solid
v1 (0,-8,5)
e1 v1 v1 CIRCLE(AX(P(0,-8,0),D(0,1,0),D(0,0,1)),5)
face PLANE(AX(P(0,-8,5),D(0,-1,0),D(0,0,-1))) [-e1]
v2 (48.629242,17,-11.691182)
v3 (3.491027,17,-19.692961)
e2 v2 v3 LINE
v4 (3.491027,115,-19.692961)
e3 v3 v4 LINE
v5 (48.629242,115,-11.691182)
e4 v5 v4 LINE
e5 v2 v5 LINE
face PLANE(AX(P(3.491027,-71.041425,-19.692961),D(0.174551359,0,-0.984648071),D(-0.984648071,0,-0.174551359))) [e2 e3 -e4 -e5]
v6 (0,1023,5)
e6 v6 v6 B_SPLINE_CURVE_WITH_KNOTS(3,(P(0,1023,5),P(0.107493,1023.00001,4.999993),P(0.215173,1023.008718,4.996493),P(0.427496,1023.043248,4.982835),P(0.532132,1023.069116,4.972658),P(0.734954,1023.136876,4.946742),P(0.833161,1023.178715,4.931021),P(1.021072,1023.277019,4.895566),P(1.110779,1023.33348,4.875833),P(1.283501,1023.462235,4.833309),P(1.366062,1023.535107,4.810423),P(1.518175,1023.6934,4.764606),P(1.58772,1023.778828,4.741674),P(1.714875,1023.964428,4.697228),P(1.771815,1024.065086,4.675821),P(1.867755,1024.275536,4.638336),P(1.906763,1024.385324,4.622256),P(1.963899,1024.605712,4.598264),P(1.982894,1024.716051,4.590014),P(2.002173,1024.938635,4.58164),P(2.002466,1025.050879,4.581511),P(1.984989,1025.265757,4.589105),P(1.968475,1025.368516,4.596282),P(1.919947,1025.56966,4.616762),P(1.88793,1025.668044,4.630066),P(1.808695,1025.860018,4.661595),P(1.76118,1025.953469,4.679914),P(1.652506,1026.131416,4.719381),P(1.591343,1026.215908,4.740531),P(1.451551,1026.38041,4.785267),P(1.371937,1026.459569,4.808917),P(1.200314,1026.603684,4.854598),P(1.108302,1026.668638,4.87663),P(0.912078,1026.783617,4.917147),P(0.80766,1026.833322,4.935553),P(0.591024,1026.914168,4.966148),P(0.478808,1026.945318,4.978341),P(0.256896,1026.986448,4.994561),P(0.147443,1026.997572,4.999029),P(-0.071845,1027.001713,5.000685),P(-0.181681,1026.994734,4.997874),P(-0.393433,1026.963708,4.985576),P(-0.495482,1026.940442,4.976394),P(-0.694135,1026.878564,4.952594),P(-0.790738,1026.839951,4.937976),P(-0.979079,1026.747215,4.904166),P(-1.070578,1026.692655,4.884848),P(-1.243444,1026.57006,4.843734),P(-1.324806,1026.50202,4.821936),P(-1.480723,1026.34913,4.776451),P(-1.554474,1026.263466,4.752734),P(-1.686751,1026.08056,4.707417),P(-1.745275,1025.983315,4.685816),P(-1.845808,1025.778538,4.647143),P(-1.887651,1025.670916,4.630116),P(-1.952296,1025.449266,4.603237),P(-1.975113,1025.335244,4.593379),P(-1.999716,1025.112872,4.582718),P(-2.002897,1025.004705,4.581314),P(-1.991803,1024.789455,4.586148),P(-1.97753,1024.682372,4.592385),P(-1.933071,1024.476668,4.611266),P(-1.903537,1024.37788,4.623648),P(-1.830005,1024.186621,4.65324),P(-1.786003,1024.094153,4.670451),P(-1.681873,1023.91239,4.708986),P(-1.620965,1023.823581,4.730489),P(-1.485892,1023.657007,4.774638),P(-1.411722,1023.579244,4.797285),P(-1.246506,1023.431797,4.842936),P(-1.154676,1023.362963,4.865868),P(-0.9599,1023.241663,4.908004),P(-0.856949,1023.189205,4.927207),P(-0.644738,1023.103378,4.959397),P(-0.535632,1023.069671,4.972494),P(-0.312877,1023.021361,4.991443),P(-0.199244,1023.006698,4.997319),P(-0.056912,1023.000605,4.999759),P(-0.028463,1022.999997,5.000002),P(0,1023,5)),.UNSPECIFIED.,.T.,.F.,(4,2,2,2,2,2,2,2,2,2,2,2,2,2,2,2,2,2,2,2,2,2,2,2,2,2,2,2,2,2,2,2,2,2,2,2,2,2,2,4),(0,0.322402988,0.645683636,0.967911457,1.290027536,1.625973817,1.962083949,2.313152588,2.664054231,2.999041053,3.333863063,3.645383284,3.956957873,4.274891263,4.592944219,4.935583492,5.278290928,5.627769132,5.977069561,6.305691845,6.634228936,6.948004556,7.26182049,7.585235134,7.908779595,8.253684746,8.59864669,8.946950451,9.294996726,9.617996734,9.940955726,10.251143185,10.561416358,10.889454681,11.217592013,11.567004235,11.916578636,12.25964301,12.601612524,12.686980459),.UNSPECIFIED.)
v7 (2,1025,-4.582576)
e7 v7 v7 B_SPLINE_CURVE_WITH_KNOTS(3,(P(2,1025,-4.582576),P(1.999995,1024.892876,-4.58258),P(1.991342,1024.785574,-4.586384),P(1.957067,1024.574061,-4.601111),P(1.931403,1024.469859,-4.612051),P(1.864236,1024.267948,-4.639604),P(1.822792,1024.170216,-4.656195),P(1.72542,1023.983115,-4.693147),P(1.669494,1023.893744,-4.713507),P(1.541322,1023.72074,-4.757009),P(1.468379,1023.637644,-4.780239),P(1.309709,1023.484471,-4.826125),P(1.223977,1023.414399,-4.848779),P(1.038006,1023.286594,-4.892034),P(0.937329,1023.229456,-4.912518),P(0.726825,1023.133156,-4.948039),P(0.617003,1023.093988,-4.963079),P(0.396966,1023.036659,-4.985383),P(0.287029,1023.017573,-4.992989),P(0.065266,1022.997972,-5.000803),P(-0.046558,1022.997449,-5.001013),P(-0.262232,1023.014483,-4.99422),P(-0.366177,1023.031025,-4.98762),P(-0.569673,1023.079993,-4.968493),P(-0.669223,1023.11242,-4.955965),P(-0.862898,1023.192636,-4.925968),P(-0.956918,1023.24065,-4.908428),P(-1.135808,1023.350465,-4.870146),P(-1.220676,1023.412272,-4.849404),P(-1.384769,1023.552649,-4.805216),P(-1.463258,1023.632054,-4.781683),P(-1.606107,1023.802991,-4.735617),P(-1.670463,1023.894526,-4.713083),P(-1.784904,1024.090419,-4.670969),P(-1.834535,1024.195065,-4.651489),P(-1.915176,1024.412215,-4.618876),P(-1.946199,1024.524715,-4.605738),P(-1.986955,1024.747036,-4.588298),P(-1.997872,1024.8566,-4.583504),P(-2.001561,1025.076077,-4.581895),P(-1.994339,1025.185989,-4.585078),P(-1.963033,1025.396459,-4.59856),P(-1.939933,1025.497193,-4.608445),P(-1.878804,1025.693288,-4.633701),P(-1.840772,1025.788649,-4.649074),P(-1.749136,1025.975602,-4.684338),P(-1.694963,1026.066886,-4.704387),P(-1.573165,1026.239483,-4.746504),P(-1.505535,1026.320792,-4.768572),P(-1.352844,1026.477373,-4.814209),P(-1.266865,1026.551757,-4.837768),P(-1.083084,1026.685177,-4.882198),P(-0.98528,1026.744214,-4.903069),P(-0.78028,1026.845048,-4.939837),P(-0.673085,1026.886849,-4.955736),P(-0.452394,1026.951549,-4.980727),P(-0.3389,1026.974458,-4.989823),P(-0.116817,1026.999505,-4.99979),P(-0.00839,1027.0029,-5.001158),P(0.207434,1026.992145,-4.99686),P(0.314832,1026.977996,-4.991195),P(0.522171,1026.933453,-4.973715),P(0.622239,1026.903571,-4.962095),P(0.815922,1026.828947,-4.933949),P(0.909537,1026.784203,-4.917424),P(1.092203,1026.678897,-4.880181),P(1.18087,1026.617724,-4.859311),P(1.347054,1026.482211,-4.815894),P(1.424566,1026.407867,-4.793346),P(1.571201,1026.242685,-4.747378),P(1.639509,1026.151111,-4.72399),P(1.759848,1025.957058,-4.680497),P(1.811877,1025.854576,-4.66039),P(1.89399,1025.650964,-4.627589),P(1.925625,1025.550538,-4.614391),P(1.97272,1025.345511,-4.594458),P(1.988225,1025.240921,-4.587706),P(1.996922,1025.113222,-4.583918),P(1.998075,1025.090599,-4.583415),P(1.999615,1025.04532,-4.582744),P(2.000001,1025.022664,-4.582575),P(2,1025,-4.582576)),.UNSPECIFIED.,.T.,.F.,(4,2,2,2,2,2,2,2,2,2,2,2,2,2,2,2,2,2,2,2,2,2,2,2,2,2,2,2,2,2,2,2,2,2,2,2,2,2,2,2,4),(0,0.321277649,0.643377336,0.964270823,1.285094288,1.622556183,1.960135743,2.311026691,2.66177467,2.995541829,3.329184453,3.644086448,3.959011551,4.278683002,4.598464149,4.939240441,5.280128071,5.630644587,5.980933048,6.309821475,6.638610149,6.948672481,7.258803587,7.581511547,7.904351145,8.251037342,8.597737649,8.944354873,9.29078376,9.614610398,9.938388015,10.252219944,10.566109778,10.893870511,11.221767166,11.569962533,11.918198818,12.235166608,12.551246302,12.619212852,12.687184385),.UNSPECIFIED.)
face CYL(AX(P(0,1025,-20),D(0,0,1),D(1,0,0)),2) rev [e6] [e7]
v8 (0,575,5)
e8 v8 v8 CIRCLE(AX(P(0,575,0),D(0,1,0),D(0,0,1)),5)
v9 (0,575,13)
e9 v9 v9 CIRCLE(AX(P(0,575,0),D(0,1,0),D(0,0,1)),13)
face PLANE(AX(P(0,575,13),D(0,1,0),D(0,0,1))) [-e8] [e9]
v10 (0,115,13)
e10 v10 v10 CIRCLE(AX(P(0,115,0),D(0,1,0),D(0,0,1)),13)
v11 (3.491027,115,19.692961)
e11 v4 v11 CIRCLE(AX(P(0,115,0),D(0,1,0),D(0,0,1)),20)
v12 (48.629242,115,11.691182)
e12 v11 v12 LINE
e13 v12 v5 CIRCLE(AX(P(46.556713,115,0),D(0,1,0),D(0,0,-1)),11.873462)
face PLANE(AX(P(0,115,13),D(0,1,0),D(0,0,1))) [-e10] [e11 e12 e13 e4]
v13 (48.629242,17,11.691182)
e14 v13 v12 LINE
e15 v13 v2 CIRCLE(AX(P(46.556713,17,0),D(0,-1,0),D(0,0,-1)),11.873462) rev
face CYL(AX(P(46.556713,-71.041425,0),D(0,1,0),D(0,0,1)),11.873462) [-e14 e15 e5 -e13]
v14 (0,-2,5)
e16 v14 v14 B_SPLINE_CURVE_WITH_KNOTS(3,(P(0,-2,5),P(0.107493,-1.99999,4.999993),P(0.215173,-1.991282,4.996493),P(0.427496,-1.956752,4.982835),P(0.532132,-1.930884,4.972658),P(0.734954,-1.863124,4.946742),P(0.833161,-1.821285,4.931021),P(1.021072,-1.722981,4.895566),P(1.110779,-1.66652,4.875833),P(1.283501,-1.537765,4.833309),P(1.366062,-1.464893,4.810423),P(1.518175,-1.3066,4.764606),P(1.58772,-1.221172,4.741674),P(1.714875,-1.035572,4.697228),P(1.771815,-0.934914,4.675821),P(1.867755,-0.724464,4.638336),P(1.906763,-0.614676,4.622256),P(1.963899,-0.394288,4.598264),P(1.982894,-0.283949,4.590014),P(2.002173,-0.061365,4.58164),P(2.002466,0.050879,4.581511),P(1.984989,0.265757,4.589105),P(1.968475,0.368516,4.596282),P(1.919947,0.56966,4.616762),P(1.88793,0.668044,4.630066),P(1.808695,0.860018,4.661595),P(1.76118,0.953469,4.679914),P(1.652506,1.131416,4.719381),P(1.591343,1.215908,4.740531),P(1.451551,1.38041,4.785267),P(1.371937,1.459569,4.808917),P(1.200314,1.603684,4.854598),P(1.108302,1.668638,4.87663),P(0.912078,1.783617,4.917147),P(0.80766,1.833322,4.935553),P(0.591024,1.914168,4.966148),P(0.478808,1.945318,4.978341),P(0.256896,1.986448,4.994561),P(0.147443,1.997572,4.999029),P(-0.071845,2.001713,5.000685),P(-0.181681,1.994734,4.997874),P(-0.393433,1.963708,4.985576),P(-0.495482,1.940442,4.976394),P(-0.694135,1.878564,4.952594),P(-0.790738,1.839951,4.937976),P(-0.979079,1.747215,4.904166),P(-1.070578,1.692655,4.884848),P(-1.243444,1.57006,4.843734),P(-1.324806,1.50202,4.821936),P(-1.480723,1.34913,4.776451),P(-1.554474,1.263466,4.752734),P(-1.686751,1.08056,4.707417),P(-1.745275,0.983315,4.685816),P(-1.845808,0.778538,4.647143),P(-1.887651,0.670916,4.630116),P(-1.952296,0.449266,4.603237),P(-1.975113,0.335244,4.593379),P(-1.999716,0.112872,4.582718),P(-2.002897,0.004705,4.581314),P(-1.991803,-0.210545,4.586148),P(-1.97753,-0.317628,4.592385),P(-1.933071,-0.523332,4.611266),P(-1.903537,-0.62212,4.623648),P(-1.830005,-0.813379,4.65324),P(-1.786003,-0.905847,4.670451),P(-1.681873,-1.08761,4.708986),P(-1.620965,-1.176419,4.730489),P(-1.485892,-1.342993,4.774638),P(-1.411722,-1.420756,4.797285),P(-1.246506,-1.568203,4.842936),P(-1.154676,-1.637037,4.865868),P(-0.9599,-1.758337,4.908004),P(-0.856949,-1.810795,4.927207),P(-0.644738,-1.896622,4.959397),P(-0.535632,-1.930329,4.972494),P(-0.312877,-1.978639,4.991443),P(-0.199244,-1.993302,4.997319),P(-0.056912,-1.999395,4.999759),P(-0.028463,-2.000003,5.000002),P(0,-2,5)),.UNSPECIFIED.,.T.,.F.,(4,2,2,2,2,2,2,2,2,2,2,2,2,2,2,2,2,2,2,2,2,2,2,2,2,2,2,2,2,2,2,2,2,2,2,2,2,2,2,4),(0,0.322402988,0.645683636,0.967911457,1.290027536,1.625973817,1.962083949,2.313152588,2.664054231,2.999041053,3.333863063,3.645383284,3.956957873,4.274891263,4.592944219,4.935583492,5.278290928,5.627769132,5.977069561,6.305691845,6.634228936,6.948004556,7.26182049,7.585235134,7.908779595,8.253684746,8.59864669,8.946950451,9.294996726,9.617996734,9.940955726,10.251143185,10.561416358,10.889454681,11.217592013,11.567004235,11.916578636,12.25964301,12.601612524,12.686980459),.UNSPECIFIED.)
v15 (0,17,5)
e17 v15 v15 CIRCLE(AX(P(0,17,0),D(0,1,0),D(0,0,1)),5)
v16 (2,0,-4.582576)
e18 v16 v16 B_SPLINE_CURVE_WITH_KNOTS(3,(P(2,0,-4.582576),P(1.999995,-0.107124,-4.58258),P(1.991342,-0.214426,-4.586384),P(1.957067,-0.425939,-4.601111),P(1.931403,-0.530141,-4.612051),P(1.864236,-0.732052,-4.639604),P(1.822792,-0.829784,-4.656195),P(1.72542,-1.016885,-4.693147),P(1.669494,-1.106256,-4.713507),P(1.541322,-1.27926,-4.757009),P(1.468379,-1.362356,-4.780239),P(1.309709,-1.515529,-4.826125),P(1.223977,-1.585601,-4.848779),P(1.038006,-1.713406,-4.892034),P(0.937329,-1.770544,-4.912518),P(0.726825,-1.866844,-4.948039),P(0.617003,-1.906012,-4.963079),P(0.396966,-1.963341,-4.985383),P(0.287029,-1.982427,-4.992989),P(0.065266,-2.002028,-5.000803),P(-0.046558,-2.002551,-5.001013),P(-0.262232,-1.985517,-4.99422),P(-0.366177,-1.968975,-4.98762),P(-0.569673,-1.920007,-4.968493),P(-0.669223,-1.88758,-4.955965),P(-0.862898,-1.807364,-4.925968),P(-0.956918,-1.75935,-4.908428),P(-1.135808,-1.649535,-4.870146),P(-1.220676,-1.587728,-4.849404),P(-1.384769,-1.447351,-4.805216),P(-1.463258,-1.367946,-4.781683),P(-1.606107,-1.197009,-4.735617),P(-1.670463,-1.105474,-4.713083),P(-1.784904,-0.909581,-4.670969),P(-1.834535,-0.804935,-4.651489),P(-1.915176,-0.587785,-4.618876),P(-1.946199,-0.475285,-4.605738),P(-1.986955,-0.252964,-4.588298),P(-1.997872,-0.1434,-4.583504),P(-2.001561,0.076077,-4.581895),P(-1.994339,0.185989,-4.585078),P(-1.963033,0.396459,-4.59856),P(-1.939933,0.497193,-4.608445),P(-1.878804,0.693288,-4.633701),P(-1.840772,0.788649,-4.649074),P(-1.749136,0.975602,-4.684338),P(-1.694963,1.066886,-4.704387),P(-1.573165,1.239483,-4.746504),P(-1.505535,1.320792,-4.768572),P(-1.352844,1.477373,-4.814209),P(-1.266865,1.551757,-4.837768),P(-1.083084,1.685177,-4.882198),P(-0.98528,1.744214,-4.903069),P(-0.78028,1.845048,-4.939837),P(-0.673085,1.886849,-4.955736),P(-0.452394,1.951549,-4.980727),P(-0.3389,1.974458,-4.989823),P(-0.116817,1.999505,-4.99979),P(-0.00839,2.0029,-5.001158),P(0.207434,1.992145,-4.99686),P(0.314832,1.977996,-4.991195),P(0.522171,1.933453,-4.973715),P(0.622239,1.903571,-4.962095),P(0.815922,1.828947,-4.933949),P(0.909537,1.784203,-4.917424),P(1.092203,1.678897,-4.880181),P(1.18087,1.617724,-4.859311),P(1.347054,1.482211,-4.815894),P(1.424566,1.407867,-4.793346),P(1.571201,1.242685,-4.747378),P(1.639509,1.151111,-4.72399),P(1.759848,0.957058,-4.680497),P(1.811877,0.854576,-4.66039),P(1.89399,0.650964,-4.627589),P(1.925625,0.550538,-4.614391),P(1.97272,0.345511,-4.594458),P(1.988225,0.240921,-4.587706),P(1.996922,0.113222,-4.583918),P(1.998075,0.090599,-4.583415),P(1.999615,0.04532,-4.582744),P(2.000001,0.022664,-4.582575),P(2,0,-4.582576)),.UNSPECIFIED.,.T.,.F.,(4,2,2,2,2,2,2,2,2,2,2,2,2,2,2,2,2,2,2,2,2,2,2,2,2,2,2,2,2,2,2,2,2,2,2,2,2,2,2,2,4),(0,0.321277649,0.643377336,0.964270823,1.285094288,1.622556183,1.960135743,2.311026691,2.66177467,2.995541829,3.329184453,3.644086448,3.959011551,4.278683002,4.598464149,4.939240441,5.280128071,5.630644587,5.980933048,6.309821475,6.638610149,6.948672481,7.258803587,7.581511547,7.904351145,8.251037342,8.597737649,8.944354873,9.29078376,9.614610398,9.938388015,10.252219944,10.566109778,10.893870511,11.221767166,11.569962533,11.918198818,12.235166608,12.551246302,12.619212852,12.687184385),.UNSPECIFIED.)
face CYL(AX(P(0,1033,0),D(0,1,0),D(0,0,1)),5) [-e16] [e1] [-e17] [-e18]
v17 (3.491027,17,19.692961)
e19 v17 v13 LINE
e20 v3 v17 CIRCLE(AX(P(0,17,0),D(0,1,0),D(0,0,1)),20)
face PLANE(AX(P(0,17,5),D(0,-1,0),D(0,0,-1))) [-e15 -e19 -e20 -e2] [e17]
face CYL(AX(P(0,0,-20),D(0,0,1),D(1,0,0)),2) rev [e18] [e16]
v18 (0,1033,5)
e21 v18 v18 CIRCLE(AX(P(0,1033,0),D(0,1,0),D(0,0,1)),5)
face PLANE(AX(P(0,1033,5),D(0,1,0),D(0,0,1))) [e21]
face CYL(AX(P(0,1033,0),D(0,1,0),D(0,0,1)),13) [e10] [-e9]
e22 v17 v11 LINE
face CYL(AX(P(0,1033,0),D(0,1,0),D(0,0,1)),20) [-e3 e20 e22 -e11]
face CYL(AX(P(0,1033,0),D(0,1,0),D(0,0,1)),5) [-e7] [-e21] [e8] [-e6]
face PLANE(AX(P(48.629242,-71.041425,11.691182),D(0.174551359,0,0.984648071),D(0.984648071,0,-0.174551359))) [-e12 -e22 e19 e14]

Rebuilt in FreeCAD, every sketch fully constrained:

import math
import FreeCAD as App
import Part
import Sketcher
from FreeCAD import Vector


def add_polygon(sketch, points):
    """Adds a closed chain of lines whose ends are joined by coincident constraints."""
    first, n = sketch.GeometryCount, len(points)
    for a, b in zip(points, points[1:] + points[:1]):
        sketch.addGeometry(Part.LineSegment(App.Vector(*a, 0), App.Vector(*b, 0)), False)
    for i in range(n):
        sketch.addConstraint(Sketcher.Constraint("Coincident", first + i, 2, first + (i + 1) % n, 1))

doc = App.newDocument("Part")
body = doc.addObject("PartDesign::Body", "Body")

# Sketch on YZ plane
sketch1 = body.newObject("Sketcher::SketchObject", "Sketch")
sketch1.AttachmentSupport = (doc.getObject("YZ_Plane"), [""])
sketch1.MapMode = "FlatFace"
add_polygon(sketch1, [(115, 20), (17, 20), (17, 5), (-8, 5), (-8, 0), (1033, 0), (1033, 5), (575, 5), (575, 13), (115, 13)])  # lines 0-9
sketch1.addConstraint([
    Sketcher.Constraint("Horizontal", 0),
    Sketcher.Constraint("Vertical", 1),
    Sketcher.Constraint("Horizontal", 2),
    Sketcher.Constraint("Vertical", 3),
    Sketcher.Constraint("Horizontal", 4),
    Sketcher.Constraint("Vertical", 5),
    Sketcher.Constraint("Horizontal", 6),
    Sketcher.Constraint("Vertical", 7),
    Sketcher.Constraint("Horizontal", 8),
    Sketcher.Constraint("Vertical", 9),
    Sketcher.Constraint("PointOnObject", 3, 2, -1),
    Sketcher.Constraint("Horizontal", 2, 2, 5, 2),
    Sketcher.Constraint("DistanceX", 0, 2, 0, 1, 98.0),
    Sketcher.Constraint("DistanceX", 2, 2, 2, 1, 25.0),
    Sketcher.Constraint("DistanceX", 4, 1, 4, 2, 1041.0),
    Sketcher.Constraint("DistanceX", 6, 2, 6, 1, 458.0),
    Sketcher.Constraint("DistanceY", 1, 2, 1, 1, 15.0),
    Sketcher.Constraint("DistanceY", 3, 2, 3, 1, 5.0),
    Sketcher.Constraint("DistanceY", 7, 1, 7, 2, 8.0),
    Sketcher.Constraint("DistanceX", -1, 1, 0, 2, 17.0),
])
revolution = body.newObject("PartDesign::Revolution", "Revolution")
revolution.Profile = sketch1
revolution.ReferenceAxis = (sketch1, ["H_Axis"])
revolution.Angle = 360

# Sketch on XY plane
sketch2 = body.newObject("Sketcher::SketchObject", "Sketch001")
sketch2.AttachmentSupport = (doc.getObject("XY_Plane"), [""])
sketch2.MapMode = "FlatFace"
sketch2.addGeometry([
    Part.Circle(Vector(0, 1025, 0), Vector(0, 0, 1), 2),
    Part.Circle(Vector(0, 0, 0), Vector(0, 0, 1), 2),
], False)
sketch2.addConstraint([
    Sketcher.Constraint("Coincident", 1, 3, -1, 1),
    Sketcher.Constraint("Equal", 0, 1),
    Sketcher.Constraint("PointOnObject", 0, 3, -2),
    Sketcher.Constraint("Diameter", 0, 4.0),
    Sketcher.Constraint("DistanceY", -1, 1, 0, 3, 1025.0),
])
pocket1 = body.newObject("PartDesign::Pocket", "Pocket")
pocket1.Profile = sketch2
pocket1.Type = "ThroughAll"
pocket1.Midplane = True

# Sketch on XZ plane
sketch3 = body.newObject("Sketcher::SketchObject", "Sketch002")
sketch3.AttachmentSupport = (doc.getObject("XZ_Plane"), [""])
sketch3.MapMode = "FlatFace"
sketch3.AttachmentOffset = App.Placement(Vector(0, 0, -115), App.Rotation())
sketch3.addGeometry([
    Part.LineSegment(Vector(48.629242, -11.691182, 0), Vector(3.491027, -19.692961, 0)),
    Part.ArcOfCircle(Part.Circle(Vector(0, 0, 0), Vector(0, 0, 1), 20), math.radians(79.947449), math.radians(280.052551)),
    Part.LineSegment(Vector(3.491027, 19.692961, 0), Vector(48.629242, 11.691182, 0)),
    Part.ArcOfCircle(Part.Circle(Vector(46.556713, 0, 0), Vector(0, 0, 1), 11.873462), math.radians(-79.947449), math.radians(79.947449)),
], False)
sketch3.addConstraint([
    Sketcher.Constraint("Coincident", 0, 2, 1, 2),
    Sketcher.Constraint("Coincident", 1, 1, 2, 1),
    Sketcher.Constraint("Coincident", 2, 2, 3, 2),
    Sketcher.Constraint("Coincident", 3, 1, 0, 1),
    Sketcher.Constraint("Coincident", 1, 3, -1, 1),
    Sketcher.Constraint("PointOnObject", 3, 3, -1),
    Sketcher.Constraint("Radius", 1, 20.0),
    Sketcher.Constraint("Radius", 3, 11.873462),
    Sketcher.Constraint("DistanceY", 0, 2, -1, 1, 19.692961),
    Sketcher.Constraint("DistanceY", -1, 1, 1, 1, 19.692961),
    Sketcher.Constraint("DistanceY", -1, 1, 2, 2, 11.691182),
    Sketcher.Constraint("DistanceY", 3, 1, -1, 1, 11.691182),
    Sketcher.Constraint("Distance", 0, 45.841978),
])
pad1 = body.newObject("PartDesign::Pad", "Pad")
pad1.Profile = sketch3
pad1.Length = 98

doc.recompute()
